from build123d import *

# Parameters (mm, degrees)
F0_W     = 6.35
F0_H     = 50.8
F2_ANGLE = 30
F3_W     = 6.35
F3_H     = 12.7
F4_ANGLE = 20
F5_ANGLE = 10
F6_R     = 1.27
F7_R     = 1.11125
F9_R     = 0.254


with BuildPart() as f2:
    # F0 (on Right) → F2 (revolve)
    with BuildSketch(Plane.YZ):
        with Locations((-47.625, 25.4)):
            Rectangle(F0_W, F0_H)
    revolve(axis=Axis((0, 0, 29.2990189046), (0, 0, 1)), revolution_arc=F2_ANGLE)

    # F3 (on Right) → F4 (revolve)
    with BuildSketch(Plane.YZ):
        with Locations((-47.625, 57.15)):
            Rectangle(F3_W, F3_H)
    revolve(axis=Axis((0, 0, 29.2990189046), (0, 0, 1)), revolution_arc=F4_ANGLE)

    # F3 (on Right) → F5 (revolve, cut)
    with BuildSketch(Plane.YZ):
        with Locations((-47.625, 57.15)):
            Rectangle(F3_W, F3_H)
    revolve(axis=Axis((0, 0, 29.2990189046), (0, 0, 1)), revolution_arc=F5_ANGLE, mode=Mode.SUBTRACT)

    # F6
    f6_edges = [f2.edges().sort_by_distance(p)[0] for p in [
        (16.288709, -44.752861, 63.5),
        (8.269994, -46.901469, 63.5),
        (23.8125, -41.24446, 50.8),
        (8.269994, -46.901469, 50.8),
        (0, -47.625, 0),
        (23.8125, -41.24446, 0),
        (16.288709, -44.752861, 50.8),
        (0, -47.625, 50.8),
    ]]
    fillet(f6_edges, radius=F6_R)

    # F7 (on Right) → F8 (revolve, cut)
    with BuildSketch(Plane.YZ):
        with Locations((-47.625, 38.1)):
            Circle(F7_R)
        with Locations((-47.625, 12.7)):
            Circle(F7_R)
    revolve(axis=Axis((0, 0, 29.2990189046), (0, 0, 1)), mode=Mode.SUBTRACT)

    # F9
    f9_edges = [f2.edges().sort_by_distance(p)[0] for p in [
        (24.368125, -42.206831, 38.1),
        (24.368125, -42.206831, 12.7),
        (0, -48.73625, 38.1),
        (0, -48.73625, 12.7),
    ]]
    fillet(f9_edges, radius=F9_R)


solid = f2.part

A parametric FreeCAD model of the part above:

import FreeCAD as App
import Part
import Sketcher
from FreeCAD import Vector
Q = App.Units.Quantity


def edges_at(feature, points):
    """Names of the edges that pass closest to the given points."""
    edges = feature.Shape.Edges
    near = lambda p: min(range(len(edges)), key=lambda i: edges[i].distToShape(Part.Vertex(*p))[0])
    return sorted({f"Edge{near(p) + 1}" for p in points})

doc = App.newDocument("Part")
body = doc.addObject("PartDesign::Body", "Body")

# Sketch on YZ plane
sketch1 = body.newObject("Sketcher::SketchObject", "Sketch")
sketch1.AttachmentSupport = (doc.getObject("YZ_Plane"), [""])
sketch1.MapMode = "FlatFace"
sketch1.addGeometry(Part.LineSegment(Vector(-51, 51, 0), Vector(-51, 0, 0)), False)
sketch1.addGeometry(Part.LineSegment(Vector(-51, 0, 0), Vector(-44, 0, 0)), False)
sketch1.addGeometry(Part.LineSegment(Vector(-44, 0, 0), Vector(-44, 51, 0)), False)
sketch1.addGeometry(Part.LineSegment(Vector(-44, 51, 0), Vector(-51, 51, 0)), False)
sketch1.addConstraint(Sketcher.Constraint("Coincident", 0, 2, 1, 1))
sketch1.addConstraint(Sketcher.Constraint("Coincident", 1, 2, 2, 1))
sketch1.addConstraint(Sketcher.Constraint("Coincident", 2, 2, 3, 1))
sketch1.addConstraint(Sketcher.Constraint("Coincident", 3, 2, 0, 1))
sketch1.addConstraint(Sketcher.Constraint("Vertical", 0))
sketch1.addConstraint(Sketcher.Constraint("Horizontal", 1))
sketch1.addConstraint(Sketcher.Constraint("Vertical", 2))
sketch1.addConstraint(Sketcher.Constraint("Horizontal", 3))
sketch1.addConstraint(Sketcher.Constraint("PointOnObject", 0, 2, -1))
sketch1.addConstraint(Sketcher.Constraint("DistanceY", 0, 2, 0, 1, Q("2 in")))
sketch1.addConstraint(Sketcher.Constraint("DistanceX", 0, 2, -1, 1, Q("2 in")))
sketch1.addConstraint(Sketcher.Constraint("DistanceX", 1, 1, 1, 2, Q("0.25 in")))
revolution = body.newObject("PartDesign::Revolution", "Revolution")
revolution.Profile = sketch1
revolution.ReferenceAxis = (sketch1, ["V_Axis"])
revolution.Angle = 30

# Sketch on YZ plane
sketch2 = body.newObject("Sketcher::SketchObject", "Sketch001")
sketch2.AttachmentSupport = (doc.getObject("YZ_Plane"), [""])
sketch2.MapMode = "FlatFace"
sketch2.addGeometry(Part.LineSegment(Vector(-51, 64, 0), Vector(-51, 51, 0)), False)
sketch2.addGeometry(Part.LineSegment(Vector(-51, 51, 0), Vector(-44, 51, 0)), False)
sketch2.addGeometry(Part.LineSegment(Vector(-44, 51, 0), Vector(-44, 64, 0)), False)
sketch2.addGeometry(Part.LineSegment(Vector(-44, 64, 0), Vector(-51, 64, 0)), False)
sketch2.addConstraint(Sketcher.Constraint("Coincident", 0, 2, 1, 1))
sketch2.addConstraint(Sketcher.Constraint("Coincident", 1, 2, 2, 1))
sketch2.addConstraint(Sketcher.Constraint("Coincident", 2, 2, 3, 1))
sketch2.addConstraint(Sketcher.Constraint("Coincident", 3, 2, 0, 1))
sketch2.addConstraint(Sketcher.Constraint("Vertical", 0))
sketch2.addConstraint(Sketcher.Constraint("Horizontal", 1))
sketch2.addConstraint(Sketcher.Constraint("Vertical", 2))
sketch2.addConstraint(Sketcher.Constraint("Horizontal", 3))
sketch2.addConstraint(Sketcher.Constraint("DistanceY", 0, 2, 0, 1, Q("0.5 in")))
sketch2.addConstraint(Sketcher.Constraint("DistanceX", 0, 2, -1, 1, Q("2 in")))
sketch2.addConstraint(Sketcher.Constraint("DistanceY", -1, 1, 0, 2, Q("2 in")))
sketch2.addConstraint(Sketcher.Constraint("DistanceX", 1, 1, 1, 2, Q("0.25 in")))
revolution2 = body.newObject("PartDesign::Revolution", "Revolution001")
revolution2.Profile = sketch2
revolution2.ReferenceAxis = (sketch2, ["V_Axis"])
revolution2.Angle = 20

# Sketch on YZ plane
sketch3 = body.newObject("Sketcher::SketchObject", "Sketch002")
sketch3.AttachmentSupport = (doc.getObject("YZ_Plane"), [""])
sketch3.MapMode = "FlatFace"
sketch3.addGeometry(Part.LineSegment(Vector(-51, 64, 0), Vector(-51, 51, 0)), False)
sketch3.addGeometry(Part.LineSegment(Vector(-51, 51, 0), Vector(-44, 51, 0)), False)
sketch3.addGeometry(Part.LineSegment(Vector(-44, 51, 0), Vector(-44, 64, 0)), False)
sketch3.addGeometry(Part.LineSegment(Vector(-44, 64, 0), Vector(-51, 64, 0)), False)
sketch3.addConstraint(Sketcher.Constraint("Coincident", 0, 2, 1, 1))
sketch3.addConstraint(Sketcher.Constraint("Coincident", 1, 2, 2, 1))
sketch3.addConstraint(Sketcher.Constraint("Coincident", 2, 2, 3, 1))
sketch3.addConstraint(Sketcher.Constraint("Coincident", 3, 2, 0, 1))
sketch3.addConstraint(Sketcher.Constraint("Vertical", 0))
sketch3.addConstraint(Sketcher.Constraint("Horizontal", 1))
sketch3.addConstraint(Sketcher.Constraint("Vertical", 2))
sketch3.addConstraint(Sketcher.Constraint("Horizontal", 3))
sketch3.addConstraint(Sketcher.Constraint("DistanceY", 0, 2, 0, 1, Q("0.5 in")))
sketch3.addConstraint(Sketcher.Constraint("DistanceX", 0, 2, -1, 1, Q("2 in")))
sketch3.addConstraint(Sketcher.Constraint("DistanceY", -1, 1, 0, 2, Q("2 in")))
sketch3.addConstraint(Sketcher.Constraint("DistanceX", 1, 1, 1, 2, Q("0.25 in")))
groove = body.newObject("PartDesign::Groove", "Groove")
groove.Profile = sketch3
groove.ReferenceAxis = (sketch3, ["V_Axis"])
groove.Angle = 10
doc.recompute()

fillet = body.newObject("PartDesign::Fillet", "Fillet")
fillet.Base = (groove, edges_at(groove, [
    (16.289, -44.753, 63.5),
    (8.27, -46.901, 63.5),
    (23.812, -41.244, 50.8),
    (8.27, -46.901, 50.8),
    (0, -47.625, 0),
    (23.812, -41.244, 0),
    (16.289, -44.753, 50.8),
    (0, -47.625, 50.8),
]))
fillet.Radius = Q("0.05 in")

# Sketch on YZ plane
sketch4 = body.newObject("Sketcher::SketchObject", "Sketch003")
sketch4.AttachmentSupport = (doc.getObject("YZ_Plane"), [""])
sketch4.MapMode = "FlatFace"
sketch4.addGeometry(Part.Circle(Vector(-47.6, 38.1, 0), Vector(0, 0, 1), 1.1), False)
sketch4.addGeometry(Part.Circle(Vector(-47.6, 12.7, 0), Vector(0, 0, 1), 1.1), False)
sketch4.addConstraint(Sketcher.Constraint("Equal", 0, 1))
sketch4.addConstraint(Sketcher.Constraint("Vertical", 0, 3, 1, 3))
sketch4.addConstraint(Sketcher.Constraint("DistanceY", 1, 3, 0, 3, Q("1 in")))
sketch4.addConstraint(Sketcher.Constraint("Diameter", 0, Q("0.0875 in")))
sketch4.addConstraint(Sketcher.Constraint("DistanceY", -1, 1, 0, 3, Q("1.5 in")))
sketch4.addConstraint(Sketcher.Constraint("DistanceX", 0, 3, -1, 1, Q("1.875 in")))
groove2 = body.newObject("PartDesign::Groove", "Groove001")
groove2.Profile = sketch4
groove2.ReferenceAxis = (sketch4, ["V_Axis"])
groove2.Angle = 360
doc.recompute()

fillet2 = body.newObject("PartDesign::Fillet", "Fillet001")
fillet2.Base = (groove2, edges_at(groove2, [
    (24.368, -42.207, 38.1),
    (24.368, -42.207, 12.7),
    (0, -48.736, 38.1),
    (0, -48.736, 12.7),
]))
fillet2.Radius = Q("0.01 in")

doc.recompute()
